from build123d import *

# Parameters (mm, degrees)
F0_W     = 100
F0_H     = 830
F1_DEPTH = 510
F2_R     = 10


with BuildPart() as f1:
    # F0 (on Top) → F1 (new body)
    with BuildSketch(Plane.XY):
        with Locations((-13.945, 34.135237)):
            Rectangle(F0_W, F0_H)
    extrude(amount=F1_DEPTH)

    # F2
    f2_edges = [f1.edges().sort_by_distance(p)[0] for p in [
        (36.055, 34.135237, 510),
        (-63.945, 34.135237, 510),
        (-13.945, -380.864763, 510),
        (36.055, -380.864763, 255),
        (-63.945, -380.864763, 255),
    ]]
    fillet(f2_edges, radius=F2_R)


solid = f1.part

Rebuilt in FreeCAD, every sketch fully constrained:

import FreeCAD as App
import Part
import Sketcher
from FreeCAD import Vector


def edges_at(feature, points):
    """Names of the edges that pass closest to the given points."""
    edges = feature.Shape.Edges
    near = lambda p: min(range(len(edges)), key=lambda i: edges[i].distToShape(Part.Vertex(*p))[0])
    return sorted({f"Edge{near(p) + 1}" for p in points})

doc = App.newDocument("Part")
body = doc.addObject("PartDesign::Body", "Body")

# Sketch on XY plane
sketch1 = doc.addObject("Sketcher::SketchObject", "Sketch")
body.addObject(sketch1)
sketch1.AttachmentSupport = (doc.XY_Plane, [""])
sketch1.MapMode = "FlatFace"
sketch1.addGeometry([
    Part.LineSegment(Vector(-64, 449, 0), Vector(-64, -381, 0)),
    Part.LineSegment(Vector(-64, -381, 0), Vector(36, -381, 0)),
    Part.LineSegment(Vector(36, -381, 0), Vector(36, 449, 0)),
    Part.LineSegment(Vector(36, 449, 0), Vector(-64, 449, 0)),
], False)
sketch1.addConstraint([
    Sketcher.Constraint("Coincident", 0, 2, 1, 1),
    Sketcher.Constraint("Coincident", 1, 2, 2, 1),
    Sketcher.Constraint("Coincident", 2, 2, 3, 1),
    Sketcher.Constraint("Coincident", 3, 2, 0, 1),
    Sketcher.Constraint("Vertical", 0),
    Sketcher.Constraint("Horizontal", 1),
    Sketcher.Constraint("Vertical", 2),
    Sketcher.Constraint("Horizontal", 3),
    Sketcher.Constraint("DistanceX", 1, 1, 1, 2, 100.0),
    Sketcher.Constraint("DistanceY", 0, 2, 0, 1, 830.0),
    Sketcher.Constraint("DistanceX", 0, 2, -1, 1, 63.945),
    Sketcher.Constraint("DistanceY", 0, 2, -1, 1, 380.864763),
])
pad1 = doc.addObject("PartDesign::Pad", "Pad")
body.addObject(pad1)
pad1.Profile = sketch1
pad1.Length = 510
doc.recompute()

fillet = doc.addObject("PartDesign::Fillet", "Fillet")
body.addObject(fillet)
fillet.Base = (pad1, edges_at(pad1, [
    (36.055, 34.135, 510),
    (-63.945, 34.135, 510),
    (-13.945, -380.865, 510),
    (36.055, -380.865, 255),
    (-63.945, -380.865, 255),
]))
fillet.Radius = 10

doc.recompute()
